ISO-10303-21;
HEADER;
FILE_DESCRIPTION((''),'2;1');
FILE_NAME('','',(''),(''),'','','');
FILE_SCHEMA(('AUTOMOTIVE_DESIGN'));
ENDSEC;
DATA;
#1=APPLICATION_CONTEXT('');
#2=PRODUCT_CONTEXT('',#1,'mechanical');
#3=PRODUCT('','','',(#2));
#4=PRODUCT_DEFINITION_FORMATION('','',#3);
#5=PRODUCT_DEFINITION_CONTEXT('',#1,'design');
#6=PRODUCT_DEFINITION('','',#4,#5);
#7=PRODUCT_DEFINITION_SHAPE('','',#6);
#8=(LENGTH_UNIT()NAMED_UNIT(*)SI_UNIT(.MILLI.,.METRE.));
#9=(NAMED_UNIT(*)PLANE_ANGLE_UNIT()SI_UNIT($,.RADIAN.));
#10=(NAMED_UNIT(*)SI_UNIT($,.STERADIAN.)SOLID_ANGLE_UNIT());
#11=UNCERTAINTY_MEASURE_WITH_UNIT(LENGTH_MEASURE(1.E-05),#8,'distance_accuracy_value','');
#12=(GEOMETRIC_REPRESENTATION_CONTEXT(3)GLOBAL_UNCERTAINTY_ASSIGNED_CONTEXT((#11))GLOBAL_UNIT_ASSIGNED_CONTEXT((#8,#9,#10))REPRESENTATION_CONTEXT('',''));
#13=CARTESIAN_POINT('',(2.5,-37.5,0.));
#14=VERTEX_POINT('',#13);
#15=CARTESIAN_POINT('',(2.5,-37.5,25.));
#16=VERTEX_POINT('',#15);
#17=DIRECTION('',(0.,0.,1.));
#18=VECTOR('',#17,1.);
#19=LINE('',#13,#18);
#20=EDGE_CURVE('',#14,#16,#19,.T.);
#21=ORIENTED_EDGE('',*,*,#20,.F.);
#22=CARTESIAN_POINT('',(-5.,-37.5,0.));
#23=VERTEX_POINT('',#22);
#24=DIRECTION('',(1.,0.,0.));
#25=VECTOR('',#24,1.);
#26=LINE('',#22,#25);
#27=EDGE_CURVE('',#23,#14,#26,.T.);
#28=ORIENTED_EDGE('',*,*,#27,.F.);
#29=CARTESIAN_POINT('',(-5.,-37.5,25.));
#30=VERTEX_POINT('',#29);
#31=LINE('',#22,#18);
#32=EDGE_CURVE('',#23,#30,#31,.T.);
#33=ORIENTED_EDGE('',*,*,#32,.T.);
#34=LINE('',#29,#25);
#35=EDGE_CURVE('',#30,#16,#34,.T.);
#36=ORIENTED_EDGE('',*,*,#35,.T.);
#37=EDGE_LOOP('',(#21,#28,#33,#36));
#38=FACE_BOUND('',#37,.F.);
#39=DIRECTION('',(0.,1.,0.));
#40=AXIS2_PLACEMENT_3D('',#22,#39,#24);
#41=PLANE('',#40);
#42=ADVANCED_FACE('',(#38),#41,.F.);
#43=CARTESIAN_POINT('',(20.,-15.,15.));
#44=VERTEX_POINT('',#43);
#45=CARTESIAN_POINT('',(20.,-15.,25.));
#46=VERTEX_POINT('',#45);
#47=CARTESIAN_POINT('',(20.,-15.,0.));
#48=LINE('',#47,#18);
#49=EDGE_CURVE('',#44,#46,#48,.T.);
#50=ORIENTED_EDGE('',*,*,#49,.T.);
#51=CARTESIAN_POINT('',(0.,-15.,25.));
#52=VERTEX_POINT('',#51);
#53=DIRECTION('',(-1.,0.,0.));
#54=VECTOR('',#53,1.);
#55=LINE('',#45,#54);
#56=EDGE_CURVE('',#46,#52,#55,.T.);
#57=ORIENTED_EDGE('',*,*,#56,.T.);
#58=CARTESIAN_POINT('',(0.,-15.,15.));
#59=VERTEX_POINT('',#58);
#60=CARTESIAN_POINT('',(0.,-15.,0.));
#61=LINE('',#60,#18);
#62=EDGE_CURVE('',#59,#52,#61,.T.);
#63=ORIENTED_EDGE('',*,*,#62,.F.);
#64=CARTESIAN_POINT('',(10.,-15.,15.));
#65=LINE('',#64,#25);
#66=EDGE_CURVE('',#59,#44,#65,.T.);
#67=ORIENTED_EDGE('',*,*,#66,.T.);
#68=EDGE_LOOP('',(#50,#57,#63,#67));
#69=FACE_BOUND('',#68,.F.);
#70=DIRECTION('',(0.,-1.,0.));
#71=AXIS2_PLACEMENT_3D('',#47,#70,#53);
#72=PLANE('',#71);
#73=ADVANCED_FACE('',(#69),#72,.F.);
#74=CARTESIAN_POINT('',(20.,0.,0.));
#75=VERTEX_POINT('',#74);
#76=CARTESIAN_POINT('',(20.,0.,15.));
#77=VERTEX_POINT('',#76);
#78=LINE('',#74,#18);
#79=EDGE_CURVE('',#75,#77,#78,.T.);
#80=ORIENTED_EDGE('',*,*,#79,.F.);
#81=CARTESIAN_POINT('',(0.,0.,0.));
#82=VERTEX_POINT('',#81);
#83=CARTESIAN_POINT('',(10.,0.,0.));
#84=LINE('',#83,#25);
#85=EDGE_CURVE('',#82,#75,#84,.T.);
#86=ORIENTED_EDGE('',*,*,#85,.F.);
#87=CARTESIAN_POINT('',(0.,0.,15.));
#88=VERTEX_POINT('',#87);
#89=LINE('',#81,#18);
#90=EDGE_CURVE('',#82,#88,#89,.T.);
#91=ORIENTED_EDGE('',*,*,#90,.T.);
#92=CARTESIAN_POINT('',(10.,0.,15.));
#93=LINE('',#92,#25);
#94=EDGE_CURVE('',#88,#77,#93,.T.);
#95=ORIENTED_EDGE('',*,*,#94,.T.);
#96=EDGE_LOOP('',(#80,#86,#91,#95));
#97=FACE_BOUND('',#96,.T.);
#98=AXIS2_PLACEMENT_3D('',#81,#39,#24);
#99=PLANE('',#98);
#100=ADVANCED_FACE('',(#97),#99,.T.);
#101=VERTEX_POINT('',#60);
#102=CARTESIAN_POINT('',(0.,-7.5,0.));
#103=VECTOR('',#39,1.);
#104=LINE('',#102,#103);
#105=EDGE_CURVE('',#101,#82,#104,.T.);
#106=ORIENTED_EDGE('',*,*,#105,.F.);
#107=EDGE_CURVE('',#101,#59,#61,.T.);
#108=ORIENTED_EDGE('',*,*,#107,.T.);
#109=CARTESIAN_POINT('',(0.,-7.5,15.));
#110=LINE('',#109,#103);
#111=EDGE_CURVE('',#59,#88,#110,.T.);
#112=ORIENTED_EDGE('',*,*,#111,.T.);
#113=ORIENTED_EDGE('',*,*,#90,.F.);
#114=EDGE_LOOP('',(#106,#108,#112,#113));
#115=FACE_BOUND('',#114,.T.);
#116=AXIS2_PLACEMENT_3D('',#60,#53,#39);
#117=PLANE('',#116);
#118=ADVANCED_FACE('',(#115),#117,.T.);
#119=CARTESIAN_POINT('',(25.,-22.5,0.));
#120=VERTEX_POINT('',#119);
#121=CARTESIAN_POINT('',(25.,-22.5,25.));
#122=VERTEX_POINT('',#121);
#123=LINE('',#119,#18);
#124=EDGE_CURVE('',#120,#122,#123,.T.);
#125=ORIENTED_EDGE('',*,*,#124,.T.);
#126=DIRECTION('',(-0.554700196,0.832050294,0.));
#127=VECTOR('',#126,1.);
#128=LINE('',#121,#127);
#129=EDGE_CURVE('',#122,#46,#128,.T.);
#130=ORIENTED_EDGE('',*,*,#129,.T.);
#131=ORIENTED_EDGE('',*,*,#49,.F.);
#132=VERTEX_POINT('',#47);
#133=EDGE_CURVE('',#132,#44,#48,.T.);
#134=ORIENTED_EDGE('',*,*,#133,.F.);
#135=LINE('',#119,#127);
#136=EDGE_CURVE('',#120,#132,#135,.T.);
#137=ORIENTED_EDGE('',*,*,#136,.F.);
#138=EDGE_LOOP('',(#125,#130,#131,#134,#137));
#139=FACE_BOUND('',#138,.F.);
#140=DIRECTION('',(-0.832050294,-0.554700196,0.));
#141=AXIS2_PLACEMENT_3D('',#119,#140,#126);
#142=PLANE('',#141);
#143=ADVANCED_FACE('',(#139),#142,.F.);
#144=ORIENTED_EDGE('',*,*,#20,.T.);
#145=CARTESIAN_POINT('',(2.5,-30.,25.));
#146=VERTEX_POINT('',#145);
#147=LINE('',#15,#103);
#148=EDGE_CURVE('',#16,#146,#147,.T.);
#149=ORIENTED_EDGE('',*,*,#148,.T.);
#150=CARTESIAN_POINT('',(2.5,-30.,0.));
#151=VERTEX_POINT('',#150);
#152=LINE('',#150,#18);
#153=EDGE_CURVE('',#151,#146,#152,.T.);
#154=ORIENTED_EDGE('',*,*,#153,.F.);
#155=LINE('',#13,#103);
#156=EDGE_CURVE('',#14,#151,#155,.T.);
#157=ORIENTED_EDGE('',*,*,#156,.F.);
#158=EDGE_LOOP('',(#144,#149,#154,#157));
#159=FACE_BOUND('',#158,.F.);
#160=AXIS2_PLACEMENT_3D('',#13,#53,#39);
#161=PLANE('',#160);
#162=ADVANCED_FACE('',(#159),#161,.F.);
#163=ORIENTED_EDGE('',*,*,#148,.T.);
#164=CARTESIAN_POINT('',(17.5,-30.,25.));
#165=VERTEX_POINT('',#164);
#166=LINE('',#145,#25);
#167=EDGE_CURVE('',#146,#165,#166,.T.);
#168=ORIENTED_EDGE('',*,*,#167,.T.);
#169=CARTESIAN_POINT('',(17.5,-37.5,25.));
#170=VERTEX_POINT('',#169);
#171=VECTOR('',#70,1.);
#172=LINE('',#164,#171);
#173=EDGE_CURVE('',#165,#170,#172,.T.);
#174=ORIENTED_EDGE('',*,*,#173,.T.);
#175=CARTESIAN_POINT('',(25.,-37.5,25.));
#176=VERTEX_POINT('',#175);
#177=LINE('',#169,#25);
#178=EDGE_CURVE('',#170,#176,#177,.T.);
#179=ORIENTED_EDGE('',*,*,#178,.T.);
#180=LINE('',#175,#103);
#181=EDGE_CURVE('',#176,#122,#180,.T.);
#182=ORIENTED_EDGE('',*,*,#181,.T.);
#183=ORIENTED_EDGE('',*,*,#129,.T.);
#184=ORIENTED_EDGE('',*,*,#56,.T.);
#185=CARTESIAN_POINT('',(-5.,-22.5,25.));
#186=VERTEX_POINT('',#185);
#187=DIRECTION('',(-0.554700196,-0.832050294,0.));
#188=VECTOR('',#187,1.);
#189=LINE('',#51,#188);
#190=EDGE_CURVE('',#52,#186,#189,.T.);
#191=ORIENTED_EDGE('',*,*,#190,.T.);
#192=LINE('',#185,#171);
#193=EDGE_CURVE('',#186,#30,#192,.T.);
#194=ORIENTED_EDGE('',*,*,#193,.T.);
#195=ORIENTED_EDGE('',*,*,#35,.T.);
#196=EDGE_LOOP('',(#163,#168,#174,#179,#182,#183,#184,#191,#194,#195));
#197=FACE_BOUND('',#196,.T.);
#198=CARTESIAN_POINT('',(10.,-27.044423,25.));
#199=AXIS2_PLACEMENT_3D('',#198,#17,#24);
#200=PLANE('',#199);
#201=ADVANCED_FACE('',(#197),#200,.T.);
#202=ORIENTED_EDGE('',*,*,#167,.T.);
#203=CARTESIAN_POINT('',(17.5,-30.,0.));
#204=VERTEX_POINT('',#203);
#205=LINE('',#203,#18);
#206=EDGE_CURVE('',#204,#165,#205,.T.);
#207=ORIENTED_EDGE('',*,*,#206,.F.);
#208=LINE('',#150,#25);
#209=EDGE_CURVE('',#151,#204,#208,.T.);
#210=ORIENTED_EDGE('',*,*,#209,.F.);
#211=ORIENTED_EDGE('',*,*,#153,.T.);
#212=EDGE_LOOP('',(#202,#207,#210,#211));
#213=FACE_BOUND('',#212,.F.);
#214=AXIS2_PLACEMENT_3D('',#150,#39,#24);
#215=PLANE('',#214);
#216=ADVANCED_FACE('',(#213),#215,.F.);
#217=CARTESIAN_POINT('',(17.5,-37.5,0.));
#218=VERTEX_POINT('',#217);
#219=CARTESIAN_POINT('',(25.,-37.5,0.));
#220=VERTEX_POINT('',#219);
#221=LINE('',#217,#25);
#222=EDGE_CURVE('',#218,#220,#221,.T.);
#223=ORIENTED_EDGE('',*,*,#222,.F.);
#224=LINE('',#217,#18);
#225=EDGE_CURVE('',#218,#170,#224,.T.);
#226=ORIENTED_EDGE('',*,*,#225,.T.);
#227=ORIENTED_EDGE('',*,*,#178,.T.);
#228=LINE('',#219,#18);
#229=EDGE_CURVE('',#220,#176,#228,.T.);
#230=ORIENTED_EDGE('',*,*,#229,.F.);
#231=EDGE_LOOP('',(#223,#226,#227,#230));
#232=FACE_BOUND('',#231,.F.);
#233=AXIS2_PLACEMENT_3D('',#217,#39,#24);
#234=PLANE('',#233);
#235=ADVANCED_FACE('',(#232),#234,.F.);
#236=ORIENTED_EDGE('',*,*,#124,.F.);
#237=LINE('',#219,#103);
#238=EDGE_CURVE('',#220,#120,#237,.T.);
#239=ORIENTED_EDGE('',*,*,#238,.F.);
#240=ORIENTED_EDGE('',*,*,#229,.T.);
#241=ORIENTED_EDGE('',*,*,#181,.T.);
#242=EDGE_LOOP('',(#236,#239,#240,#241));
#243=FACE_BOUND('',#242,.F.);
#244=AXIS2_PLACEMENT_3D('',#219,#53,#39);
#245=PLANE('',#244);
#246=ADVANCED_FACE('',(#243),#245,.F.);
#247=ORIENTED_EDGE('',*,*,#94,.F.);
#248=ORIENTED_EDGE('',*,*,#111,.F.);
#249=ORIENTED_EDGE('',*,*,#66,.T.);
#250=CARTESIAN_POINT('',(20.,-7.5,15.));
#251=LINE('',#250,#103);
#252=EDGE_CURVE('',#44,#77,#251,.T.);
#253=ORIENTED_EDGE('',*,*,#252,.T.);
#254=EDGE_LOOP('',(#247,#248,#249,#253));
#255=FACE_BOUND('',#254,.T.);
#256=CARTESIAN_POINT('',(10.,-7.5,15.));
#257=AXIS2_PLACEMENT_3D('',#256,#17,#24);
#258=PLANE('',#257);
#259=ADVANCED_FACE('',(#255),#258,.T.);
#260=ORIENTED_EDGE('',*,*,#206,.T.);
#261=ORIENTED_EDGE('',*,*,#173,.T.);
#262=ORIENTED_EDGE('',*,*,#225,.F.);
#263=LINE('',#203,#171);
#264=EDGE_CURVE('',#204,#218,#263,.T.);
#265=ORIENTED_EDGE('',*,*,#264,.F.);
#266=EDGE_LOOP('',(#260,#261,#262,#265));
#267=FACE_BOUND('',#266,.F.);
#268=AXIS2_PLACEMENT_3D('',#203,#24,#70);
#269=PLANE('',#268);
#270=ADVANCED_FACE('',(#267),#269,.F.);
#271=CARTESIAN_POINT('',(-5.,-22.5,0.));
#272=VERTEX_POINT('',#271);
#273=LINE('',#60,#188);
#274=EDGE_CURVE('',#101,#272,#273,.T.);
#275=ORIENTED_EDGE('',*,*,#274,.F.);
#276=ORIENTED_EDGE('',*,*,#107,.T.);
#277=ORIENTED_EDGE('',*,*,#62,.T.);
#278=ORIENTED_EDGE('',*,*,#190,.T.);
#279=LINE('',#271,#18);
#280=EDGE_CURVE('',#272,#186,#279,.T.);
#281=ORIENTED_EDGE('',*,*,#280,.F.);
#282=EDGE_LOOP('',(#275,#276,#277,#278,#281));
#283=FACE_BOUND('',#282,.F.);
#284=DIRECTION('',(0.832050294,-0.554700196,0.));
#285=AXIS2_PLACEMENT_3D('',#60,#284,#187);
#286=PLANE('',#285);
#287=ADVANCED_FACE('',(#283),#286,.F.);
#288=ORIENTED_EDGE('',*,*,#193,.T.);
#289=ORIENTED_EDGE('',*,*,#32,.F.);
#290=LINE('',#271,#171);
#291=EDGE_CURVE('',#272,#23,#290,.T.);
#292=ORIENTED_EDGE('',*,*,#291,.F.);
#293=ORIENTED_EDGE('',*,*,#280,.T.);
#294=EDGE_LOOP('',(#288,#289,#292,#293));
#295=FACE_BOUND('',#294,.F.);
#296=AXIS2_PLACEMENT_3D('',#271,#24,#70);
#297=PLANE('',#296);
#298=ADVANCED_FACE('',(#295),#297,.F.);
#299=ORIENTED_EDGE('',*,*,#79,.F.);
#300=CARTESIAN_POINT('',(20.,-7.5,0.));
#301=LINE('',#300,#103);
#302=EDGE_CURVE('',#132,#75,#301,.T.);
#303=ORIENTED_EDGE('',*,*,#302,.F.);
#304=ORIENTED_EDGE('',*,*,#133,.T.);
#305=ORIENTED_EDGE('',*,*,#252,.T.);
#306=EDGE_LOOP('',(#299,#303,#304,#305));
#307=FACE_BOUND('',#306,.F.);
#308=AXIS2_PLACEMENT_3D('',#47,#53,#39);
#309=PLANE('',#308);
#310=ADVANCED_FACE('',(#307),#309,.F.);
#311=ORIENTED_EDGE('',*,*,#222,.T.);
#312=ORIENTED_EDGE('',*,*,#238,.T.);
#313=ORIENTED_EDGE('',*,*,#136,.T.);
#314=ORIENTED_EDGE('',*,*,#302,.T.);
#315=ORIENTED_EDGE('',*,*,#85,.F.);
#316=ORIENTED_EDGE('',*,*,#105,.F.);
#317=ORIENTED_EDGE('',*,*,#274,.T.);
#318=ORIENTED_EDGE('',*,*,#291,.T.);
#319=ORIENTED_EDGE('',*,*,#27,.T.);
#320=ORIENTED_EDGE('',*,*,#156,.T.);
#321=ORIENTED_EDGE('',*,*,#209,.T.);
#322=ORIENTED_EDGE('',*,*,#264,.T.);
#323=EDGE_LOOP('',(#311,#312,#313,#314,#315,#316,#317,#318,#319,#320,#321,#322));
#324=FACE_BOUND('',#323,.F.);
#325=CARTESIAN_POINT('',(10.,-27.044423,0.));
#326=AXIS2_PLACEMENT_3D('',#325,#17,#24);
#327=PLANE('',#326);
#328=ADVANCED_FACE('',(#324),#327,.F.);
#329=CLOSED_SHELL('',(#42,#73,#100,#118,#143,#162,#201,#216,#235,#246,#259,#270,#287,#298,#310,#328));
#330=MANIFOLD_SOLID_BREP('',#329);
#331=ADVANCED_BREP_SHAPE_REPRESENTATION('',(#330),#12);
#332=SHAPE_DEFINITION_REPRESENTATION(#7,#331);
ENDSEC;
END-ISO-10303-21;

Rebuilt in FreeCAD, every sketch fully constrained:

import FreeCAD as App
import Part
import Sketcher
from FreeCAD import Vector
Q = App.Units.Quantity

doc = App.newDocument("Part")
params = doc.addObject("Spreadsheet::Sheet", "Params")
for row, (alias, value) in enumerate([
    ("sketch1_width", "20 mm"),
    ("sketch1_height", "15 mm"),
    ("pad1_length", "15 mm"),
    ("sketch2_width", "20 mm"),
    ("sketch2_width2", "15 mm"),
    ("sketch2_width3", "7.5 mm"),
    ("pad2_length", "25 mm"),
], start=1):
    params.set(f"A{row}", alias)
    params.set(f"B{row}", "=" + value)
    params.setAlias(f"B{row}", alias)

body = doc.addObject("PartDesign::Body", "Body")

# Sketch on XY plane
sketch1 = doc.addObject("Sketcher::SketchObject", "Sketch")
body.addObject(sketch1)
sketch1.AttachmentSupport = (doc.XY_Plane, [""])
sketch1.MapMode = "FlatFace"
sketch1.addGeometry([
    Part.LineSegment(Vector(0, 0, 0), Vector(0, -15, 0)),
    Part.LineSegment(Vector(0, -15, 0), Vector(20, -15, 0)),
    Part.LineSegment(Vector(20, -15, 0), Vector(20, 0, 0)),
    Part.LineSegment(Vector(20, 0, 0), Vector(0, 0, 0)),
], False)
sketch1.addConstraint([
    Sketcher.Constraint("Coincident", 0, 2, 1, 1),
    Sketcher.Constraint("Coincident", 1, 2, 2, 1),
    Sketcher.Constraint("Coincident", 2, 2, 3, 1),
    Sketcher.Constraint("Coincident", 3, 2, 0, 1),
    Sketcher.Constraint("Vertical", 0),
    Sketcher.Constraint("Horizontal", 1),
    Sketcher.Constraint("Vertical", 2),
    Sketcher.Constraint("Horizontal", 3),
    Sketcher.Constraint("Coincident", 3, 2, -1, 1),
    Sketcher.Constraint("DistanceX", 1, 1, 1, 2, Q("20 mm")),
    Sketcher.Constraint("DistanceY", 0, 2, 0, 1, Q("15 mm")),
])
sketch1.setExpression("Constraints[9]", "Params.sketch1_width")
sketch1.setExpression("Constraints[10]", "Params.sketch1_height")
pad1 = doc.addObject("PartDesign::Pad", "Pad")
body.addObject(pad1)
pad1.Profile = sketch1
pad1.setExpression("Length", "Params.pad1_length")

# Sketch on XY plane
sketch2 = doc.addObject("Sketcher::SketchObject", "Sketch001")
body.addObject(sketch2)
sketch2.AttachmentSupport = (doc.XY_Plane, [""])
sketch2.MapMode = "FlatFace"
sketch2.addGeometry([
    Part.LineSegment(Vector(20, -15, 0), Vector(0, -15, 0)),  # 0
    Part.LineSegment(Vector(0, -15, 0), Vector(-5, -22.5, 0)),  # 1
    Part.LineSegment(Vector(-5, -22.5, 0), Vector(-5, -37.5, 0)),  # 2
    Part.LineSegment(Vector(-5, -37.5, 0), Vector(2.5, -37.5, 0)),  # 3
    Part.LineSegment(Vector(2.5, -37.5, 0), Vector(2.5, -30, 0)),  # 4
    Part.LineSegment(Vector(2.5, -30, 0), Vector(17.5, -30, 0)),  # 5
    Part.LineSegment(Vector(17.5, -30, 0), Vector(17.5, -37.5, 0)),  # 6
    Part.LineSegment(Vector(17.5, -37.5, 0), Vector(25, -37.5, 0)),  # 7
    Part.LineSegment(Vector(25, -37.5, 0), Vector(25, -22.5, 0)),  # 8
    Part.LineSegment(Vector(25, -22.5, 0), Vector(20, -15, 0)),  # 9
], False)
sketch2.addConstraint([
    Sketcher.Constraint("Coincident", 0, 2, 1, 1),
    Sketcher.Constraint("Coincident", 1, 2, 2, 1),
    Sketcher.Constraint("Coincident", 2, 2, 3, 1),
    Sketcher.Constraint("Coincident", 3, 2, 4, 1),
    Sketcher.Constraint("Coincident", 4, 2, 5, 1),
    Sketcher.Constraint("Coincident", 5, 2, 6, 1),
    Sketcher.Constraint("Coincident", 6, 2, 7, 1),
    Sketcher.Constraint("Coincident", 7, 2, 8, 1),
    Sketcher.Constraint("Coincident", 8, 2, 9, 1),
    Sketcher.Constraint("Coincident", 9, 2, 0, 1),
    Sketcher.Constraint("Horizontal", 0),
    Sketcher.Constraint("Vertical", 2),
    Sketcher.Constraint("Horizontal", 3),
    Sketcher.Constraint("Vertical", 4),
    Sketcher.Constraint("Horizontal", 5),
    Sketcher.Constraint("Vertical", 6),
    Sketcher.Constraint("Horizontal", 7),
    Sketcher.Constraint("Vertical", 8),
    Sketcher.Constraint("PointOnObject", 0, 2, -2),
    Sketcher.Constraint("Horizontal", 3, 2, 6, 2),
    Sketcher.Constraint("Horizontal", 1, 2, 8, 2),
    Sketcher.Constraint("Equal", 3, 7),
    Sketcher.Constraint("Equal", 5, 2),
    Sketcher.Constraint("Equal", 7, 4),
    Sketcher.Constraint("Equal", 1, 9),
    Sketcher.Constraint("DistanceX", 0, 2, 0, 1, Q("20 mm")),
    Sketcher.Constraint("DistanceX", 5, 1, 5, 2, Q("15 mm")),
    Sketcher.Constraint("DistanceX", 3, 1, 3, 2, Q("7.5 mm")),
    Sketcher.Constraint("DistanceY", 0, 2, -1, 1, Q("15 mm")),
    Sketcher.Constraint("DistanceY", 4, 2, -1, 1, Q("30 mm")),
])
sketch2.setExpression("Constraints[25]", "Params.sketch2_width")
sketch2.setExpression("Constraints[26]", "Params.sketch2_width2")
sketch2.setExpression("Constraints[27]", "Params.sketch2_width3")
pad2 = doc.addObject("PartDesign::Pad", "Pad001")
body.addObject(pad2)
pad2.Profile = sketch2
pad2.setExpression("Length", "Params.pad2_length")

doc.recompute()
